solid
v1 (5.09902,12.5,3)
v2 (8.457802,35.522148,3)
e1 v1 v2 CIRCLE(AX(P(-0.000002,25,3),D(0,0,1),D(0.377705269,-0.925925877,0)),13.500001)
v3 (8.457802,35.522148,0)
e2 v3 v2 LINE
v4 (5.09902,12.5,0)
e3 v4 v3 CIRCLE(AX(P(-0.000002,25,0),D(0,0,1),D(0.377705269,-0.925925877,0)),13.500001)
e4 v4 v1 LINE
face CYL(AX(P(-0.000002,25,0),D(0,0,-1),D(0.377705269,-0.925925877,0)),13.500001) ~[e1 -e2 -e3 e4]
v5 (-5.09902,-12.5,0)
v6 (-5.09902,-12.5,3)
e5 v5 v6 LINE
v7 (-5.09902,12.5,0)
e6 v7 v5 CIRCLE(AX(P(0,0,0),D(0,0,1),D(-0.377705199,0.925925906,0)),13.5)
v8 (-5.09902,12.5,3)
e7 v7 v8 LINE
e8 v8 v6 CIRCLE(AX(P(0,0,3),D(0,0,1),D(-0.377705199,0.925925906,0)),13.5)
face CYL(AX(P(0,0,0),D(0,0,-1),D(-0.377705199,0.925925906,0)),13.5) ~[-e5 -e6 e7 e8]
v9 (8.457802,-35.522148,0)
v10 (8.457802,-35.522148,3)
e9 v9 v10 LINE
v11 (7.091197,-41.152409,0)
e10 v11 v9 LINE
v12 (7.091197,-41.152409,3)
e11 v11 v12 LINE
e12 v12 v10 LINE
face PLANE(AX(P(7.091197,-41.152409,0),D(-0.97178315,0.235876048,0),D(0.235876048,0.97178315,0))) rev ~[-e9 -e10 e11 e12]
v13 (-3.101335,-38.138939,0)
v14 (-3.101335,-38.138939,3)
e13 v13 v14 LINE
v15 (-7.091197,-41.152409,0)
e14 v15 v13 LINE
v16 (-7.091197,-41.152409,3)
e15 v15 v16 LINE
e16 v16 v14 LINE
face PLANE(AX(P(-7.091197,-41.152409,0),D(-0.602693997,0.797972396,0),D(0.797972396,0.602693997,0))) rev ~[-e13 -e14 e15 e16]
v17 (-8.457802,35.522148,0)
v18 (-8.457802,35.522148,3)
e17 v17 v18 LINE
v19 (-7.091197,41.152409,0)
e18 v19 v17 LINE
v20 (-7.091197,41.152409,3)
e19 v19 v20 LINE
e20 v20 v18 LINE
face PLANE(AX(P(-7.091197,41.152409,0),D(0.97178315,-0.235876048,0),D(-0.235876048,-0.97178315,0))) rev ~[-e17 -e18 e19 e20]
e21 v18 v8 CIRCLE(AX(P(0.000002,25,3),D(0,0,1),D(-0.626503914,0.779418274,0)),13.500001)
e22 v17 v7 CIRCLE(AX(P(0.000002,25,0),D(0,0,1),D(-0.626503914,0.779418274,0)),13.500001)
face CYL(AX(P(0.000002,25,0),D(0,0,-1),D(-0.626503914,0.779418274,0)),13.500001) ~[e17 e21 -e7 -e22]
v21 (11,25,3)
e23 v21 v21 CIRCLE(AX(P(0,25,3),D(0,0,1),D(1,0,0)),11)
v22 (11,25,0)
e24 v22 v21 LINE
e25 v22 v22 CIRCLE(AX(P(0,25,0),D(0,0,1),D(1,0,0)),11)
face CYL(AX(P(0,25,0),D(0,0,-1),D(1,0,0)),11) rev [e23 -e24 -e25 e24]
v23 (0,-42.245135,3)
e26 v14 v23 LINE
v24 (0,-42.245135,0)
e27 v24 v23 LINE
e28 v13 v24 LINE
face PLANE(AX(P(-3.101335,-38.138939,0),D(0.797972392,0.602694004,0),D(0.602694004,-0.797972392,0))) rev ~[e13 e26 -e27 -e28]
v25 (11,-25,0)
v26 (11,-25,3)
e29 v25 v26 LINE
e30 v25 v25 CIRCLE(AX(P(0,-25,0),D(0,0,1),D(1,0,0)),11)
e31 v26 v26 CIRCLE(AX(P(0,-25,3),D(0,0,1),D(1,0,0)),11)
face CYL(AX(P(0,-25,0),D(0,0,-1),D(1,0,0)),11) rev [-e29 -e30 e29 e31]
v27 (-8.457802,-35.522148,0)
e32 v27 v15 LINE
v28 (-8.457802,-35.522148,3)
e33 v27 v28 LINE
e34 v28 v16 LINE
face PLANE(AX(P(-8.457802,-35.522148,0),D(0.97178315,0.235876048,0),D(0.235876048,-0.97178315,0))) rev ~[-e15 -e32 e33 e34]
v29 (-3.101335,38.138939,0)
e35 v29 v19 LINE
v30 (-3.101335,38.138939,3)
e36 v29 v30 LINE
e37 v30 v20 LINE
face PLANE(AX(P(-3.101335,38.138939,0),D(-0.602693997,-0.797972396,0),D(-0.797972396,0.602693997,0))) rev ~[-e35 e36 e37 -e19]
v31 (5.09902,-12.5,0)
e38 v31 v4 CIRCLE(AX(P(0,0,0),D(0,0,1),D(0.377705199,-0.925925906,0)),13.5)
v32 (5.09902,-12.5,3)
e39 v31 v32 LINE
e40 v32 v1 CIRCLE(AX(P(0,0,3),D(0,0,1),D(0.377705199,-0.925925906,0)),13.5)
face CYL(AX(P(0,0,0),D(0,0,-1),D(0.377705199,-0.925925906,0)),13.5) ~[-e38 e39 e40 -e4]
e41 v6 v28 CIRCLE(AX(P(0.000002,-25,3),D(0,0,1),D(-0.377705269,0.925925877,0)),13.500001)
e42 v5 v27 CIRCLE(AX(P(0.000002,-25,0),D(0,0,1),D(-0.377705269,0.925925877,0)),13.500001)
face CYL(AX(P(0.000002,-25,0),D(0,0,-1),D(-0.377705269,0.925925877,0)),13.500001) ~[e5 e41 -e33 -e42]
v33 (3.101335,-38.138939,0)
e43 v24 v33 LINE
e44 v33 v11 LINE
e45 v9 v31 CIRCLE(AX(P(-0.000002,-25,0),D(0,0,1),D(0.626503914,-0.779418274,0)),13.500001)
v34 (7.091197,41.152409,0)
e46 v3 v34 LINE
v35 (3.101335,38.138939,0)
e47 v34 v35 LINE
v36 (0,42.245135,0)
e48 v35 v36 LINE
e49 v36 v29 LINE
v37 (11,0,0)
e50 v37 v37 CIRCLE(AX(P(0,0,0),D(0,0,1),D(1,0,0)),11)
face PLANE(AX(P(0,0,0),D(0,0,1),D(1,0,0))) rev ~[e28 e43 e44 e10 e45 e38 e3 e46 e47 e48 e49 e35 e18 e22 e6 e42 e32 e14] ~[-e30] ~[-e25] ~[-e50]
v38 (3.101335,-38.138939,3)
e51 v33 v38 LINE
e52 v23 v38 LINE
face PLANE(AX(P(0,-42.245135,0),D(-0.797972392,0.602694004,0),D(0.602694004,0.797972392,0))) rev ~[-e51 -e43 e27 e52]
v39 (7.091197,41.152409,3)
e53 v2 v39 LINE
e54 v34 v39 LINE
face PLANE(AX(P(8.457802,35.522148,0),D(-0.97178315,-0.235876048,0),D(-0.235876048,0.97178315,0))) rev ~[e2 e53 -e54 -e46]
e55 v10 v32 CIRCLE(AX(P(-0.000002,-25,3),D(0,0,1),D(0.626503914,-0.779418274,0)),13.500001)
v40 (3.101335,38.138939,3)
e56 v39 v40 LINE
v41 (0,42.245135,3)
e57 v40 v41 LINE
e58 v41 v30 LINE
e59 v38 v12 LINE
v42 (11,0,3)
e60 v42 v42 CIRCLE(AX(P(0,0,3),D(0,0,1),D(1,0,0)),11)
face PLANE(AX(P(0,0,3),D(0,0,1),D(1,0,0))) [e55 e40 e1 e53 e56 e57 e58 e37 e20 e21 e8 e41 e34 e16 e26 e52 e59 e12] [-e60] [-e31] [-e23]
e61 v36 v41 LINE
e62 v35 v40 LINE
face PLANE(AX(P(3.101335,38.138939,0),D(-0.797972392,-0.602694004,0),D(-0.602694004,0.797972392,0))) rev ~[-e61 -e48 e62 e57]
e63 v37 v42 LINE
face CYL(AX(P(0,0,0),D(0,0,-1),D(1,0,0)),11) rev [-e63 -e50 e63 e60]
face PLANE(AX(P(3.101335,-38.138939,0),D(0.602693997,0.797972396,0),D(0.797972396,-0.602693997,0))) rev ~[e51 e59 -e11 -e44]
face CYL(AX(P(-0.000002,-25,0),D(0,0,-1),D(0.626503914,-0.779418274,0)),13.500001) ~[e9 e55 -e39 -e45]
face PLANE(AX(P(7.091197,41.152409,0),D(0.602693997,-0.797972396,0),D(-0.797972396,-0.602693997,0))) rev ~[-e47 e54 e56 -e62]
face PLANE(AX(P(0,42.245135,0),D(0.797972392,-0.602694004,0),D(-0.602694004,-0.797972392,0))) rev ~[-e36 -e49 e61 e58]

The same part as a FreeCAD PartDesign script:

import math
import FreeCAD as App
import Part
import Sketcher

V = App.Vector
Q = App.Units.Quantity

doc = App.newDocument("Part")
body = doc.addObject("PartDesign::Body", "Body")

# Sketch on XY plane
sketch1 = doc.addObject("Sketcher::SketchObject", "Sketch")
body.addObject(sketch1)
sketch1.AttachmentSupport = (doc.XY_Plane, [""])
sketch1.MapMode = "FlatFace"
sketch1.addGeometry([
    Part.ArcOfCircle(Part.Circle(V(0, -25, 0), V(0, 0, 1), 14), math.radians(-51), math.radians(68)),  # 0
    Part.ArcOfCircle(Part.Circle(V(0, 0, 0), V(0, 0, 1), 14), math.radians(-68), math.radians(68)),  # 1
    Part.ArcOfCircle(Part.Circle(V(0, 25, 0), V(0, 0, 1), 14), math.radians(-68), math.radians(51)),  # 2
    Part.LineSegment(V(8, 36, 0), V(7, 41, 0)),  # 3
    Part.LineSegment(V(7, 41, 0), V(3, 38, 0)),  # 4
    Part.LineSegment(V(3, 38, 0), V(0, 42, 0)),  # 5
    Part.LineSegment(V(0, 42, 0), V(-3, 38, 0)),  # 6
    Part.LineSegment(V(-3, 38, 0), V(-7, 41, 0)),  # 7
    Part.LineSegment(V(-7, 41, 0), V(-8, 36, 0)),  # 8
    Part.ArcOfCircle(Part.Circle(V(0, 25, 0), V(0, 0, 1), 14), math.radians(129), math.radians(248)),  # 9
    Part.ArcOfCircle(Part.Circle(V(0, 0, 0), V(0, 0, 1), 14), math.radians(112), math.radians(248)),  # 10
    Part.ArcOfCircle(Part.Circle(V(0, -25, 0), V(0, 0, 1), 14), math.radians(112), math.radians(231)),  # 11
    Part.LineSegment(V(-8, -36, 0), V(-7, -41, 0)),  # 12
    Part.LineSegment(V(-7, -41, 0), V(-3, -38, 0)),  # 13
    Part.LineSegment(V(-3, -38, 0), V(0, -42, 0)),  # 14
    Part.LineSegment(V(0, -42, 0), V(3, -38, 0)),  # 15
    Part.LineSegment(V(3, -38, 0), V(7, -41, 0)),  # 16
    Part.LineSegment(V(7, -41, 0), V(8, -36, 0)),  # 17
    Part.Circle(V(0, -25, 0), V(0, 0, 1), 11),  # 18
    Part.Circle(V(0, 0, 0), V(0, 0, 1), 11),  # 19
    Part.Circle(V(0, 25, 0), V(0, 0, 1), 11),  # 20
], False)
sketch1.addConstraint([
    Sketcher.Constraint("Coincident", 0, 2, 1, 1),
    Sketcher.Constraint("Coincident", 1, 2, 2, 1),
    Sketcher.Constraint("Coincident", 2, 2, 3, 1),
    Sketcher.Constraint("Coincident", 3, 2, 4, 1),
    Sketcher.Constraint("Coincident", 4, 2, 5, 1),
    Sketcher.Constraint("Coincident", 5, 2, 6, 1),
    Sketcher.Constraint("Coincident", 6, 2, 7, 1),
    Sketcher.Constraint("Coincident", 7, 2, 8, 1),
    Sketcher.Constraint("Coincident", 8, 2, 9, 1),
    Sketcher.Constraint("Coincident", 9, 2, 10, 1),
    Sketcher.Constraint("Coincident", 10, 2, 11, 1),
    Sketcher.Constraint("Coincident", 11, 2, 12, 1),
    Sketcher.Constraint("Coincident", 12, 2, 13, 1),
    Sketcher.Constraint("Coincident", 13, 2, 14, 1),
    Sketcher.Constraint("Coincident", 14, 2, 15, 1),
    Sketcher.Constraint("Coincident", 15, 2, 16, 1),
    Sketcher.Constraint("Coincident", 16, 2, 17, 1),
    Sketcher.Constraint("Coincident", 17, 2, 0, 1),
    Sketcher.Constraint("Coincident", 1, 3, -1, 1),
    Sketcher.Constraint("Coincident", 10, 3, -1, 1),
    Sketcher.Constraint("Coincident", 19, 3, -1, 1),
    Sketcher.Constraint("Coincident", 9, 3, 2, 3),
    Sketcher.Constraint("Coincident", 11, 3, 0, 3),
    Sketcher.Constraint("Coincident", 18, 3, 0, 3),
    Sketcher.Constraint("Coincident", 20, 3, 2, 3),
    Sketcher.Constraint("Equal", 0, 1),
    Sketcher.Constraint("Equal", 1, 2),
    Sketcher.Constraint("Equal", 2, 9),
    Sketcher.Constraint("Equal", 9, 10),
    Sketcher.Constraint("Equal", 10, 11),
    Sketcher.Constraint("Equal", 18, 19),
    Sketcher.Constraint("Equal", 19, 20),
    Sketcher.Constraint("Symmetric", 0, 3, 2, 3, -1, 1),
    Sketcher.Constraint("Symmetric", 3, 2, 12, 2, -1, 1),
    Sketcher.Constraint("Symmetric", 4, 2, 13, 2, -1, 1),
    Sketcher.Constraint("Symmetric", 5, 2, 14, 2, -1, 1),
    Sketcher.Constraint("Symmetric", 6, 2, 15, 2, -1, 1),
    Sketcher.Constraint("Symmetric", 7, 2, 16, 2, -1, 1),
    Sketcher.Constraint("Symmetric", 4, 2, 6, 2, -2),
    Sketcher.Constraint("Symmetric", 3, 2, 7, 2, -2),
    Sketcher.Constraint("Symmetric", 2, 2, 8, 2, -2),
    Sketcher.Constraint("PointOnObject", 5, 2, -2),
    Sketcher.Constraint("Perpendicular", 4, 5),
    Sketcher.Constraint("Parallel", 3, 12),
    Sketcher.Constraint("Parallel", 8, 17),
    Sketcher.Constraint("Diameter", 18, Q("22 mm")),
    Sketcher.Constraint("Radius", 0, Q("13.500001 mm")),
    Sketcher.Constraint("Distance", 4, Q("5 mm")),
    Sketcher.Constraint("DistanceY", 0, 3, -1, 1, Q("25 mm")),
    Sketcher.Constraint("DistanceX", 7, 2, 2, 2, Q("15.548999 mm")),
    Sketcher.Constraint("DistanceX", 8, 2, -1, 1, Q("8.457802 mm")),
    Sketcher.Constraint("DistanceY", -1, 1, 3, 2, Q("41.152409 mm")),
    Sketcher.Constraint("DistanceY", -1, 1, 4, 2, Q("38.138939 mm")),
])
pad1 = doc.addObject("PartDesign::Pad", "Pad")
body.addObject(pad1)
pad1.Profile = sketch1
pad1.Length = 3

doc.recompute()
